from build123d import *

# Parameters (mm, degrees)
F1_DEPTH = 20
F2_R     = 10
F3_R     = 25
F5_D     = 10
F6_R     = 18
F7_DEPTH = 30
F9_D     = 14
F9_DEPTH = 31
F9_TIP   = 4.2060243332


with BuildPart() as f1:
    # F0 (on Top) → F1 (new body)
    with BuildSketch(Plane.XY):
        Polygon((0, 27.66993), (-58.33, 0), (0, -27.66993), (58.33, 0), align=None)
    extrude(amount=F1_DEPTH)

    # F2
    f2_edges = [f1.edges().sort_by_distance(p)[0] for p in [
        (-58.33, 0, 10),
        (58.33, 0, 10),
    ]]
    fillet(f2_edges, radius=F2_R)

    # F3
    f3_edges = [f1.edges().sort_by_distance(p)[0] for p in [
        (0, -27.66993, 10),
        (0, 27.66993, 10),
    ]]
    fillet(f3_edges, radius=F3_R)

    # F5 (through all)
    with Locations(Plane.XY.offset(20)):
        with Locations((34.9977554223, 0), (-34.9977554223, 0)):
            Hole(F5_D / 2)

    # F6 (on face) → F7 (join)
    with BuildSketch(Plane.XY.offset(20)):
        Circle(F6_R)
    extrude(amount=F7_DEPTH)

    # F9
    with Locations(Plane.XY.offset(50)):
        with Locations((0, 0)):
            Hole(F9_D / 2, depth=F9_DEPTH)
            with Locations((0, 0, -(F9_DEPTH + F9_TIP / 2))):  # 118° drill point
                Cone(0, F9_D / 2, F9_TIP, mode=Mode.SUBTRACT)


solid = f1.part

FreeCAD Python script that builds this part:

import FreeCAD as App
import Part
import Sketcher

V = App.Vector
Q = App.Units.Quantity


def edges_at(feature, points):
    """Names of the edges that pass closest to the given points."""
    edges = feature.Shape.Edges
    near = lambda p: min(range(len(edges)), key=lambda i: edges[i].distToShape(Part.Vertex(*p))[0])
    return sorted({f"Edge{near(p) + 1}" for p in points})

doc = App.newDocument("Part")
params = doc.addObject("Spreadsheet::Sheet", "Params")
for row, (alias, value) in enumerate([
    ("pad1_length", "20 mm"),
    ("fillet_radius", "10 mm"),
    ("fillet2_radius", "25 mm"),
    ("sketch2_diameter", "10 mm"),
    ("hole_diameter", "10 mm"),
    ("sketch3_diameter", "36 mm"),
    ("pad2_length", "30 mm"),
    ("sketch4_diameter", "14 mm"),
    ("hole2_diameter", "14 mm"),
    ("hole2_depth", "31 mm"),
], start=1):
    params.set(f"A{row}", alias)
    params.set(f"B{row}", "=" + value)
    params.setAlias(f"B{row}", alias)

body = doc.addObject("PartDesign::Body", "Body")

# Sketch on XY plane
sketch1 = body.newObject("Sketcher::SketchObject", "Sketch")
sketch1.AttachmentSupport = (doc.getObject("XY_Plane"), [""])
sketch1.MapMode = "FlatFace"
sketch1.addGeometry(Part.LineSegment(V(0, 28, 0), V(-58, 0, 0)), False)
sketch1.addGeometry(Part.LineSegment(V(-58, 0, 0), V(0, -28, 0)), False)
sketch1.addGeometry(Part.LineSegment(V(0, -28, 0), V(58, 0, 0)), False)
sketch1.addGeometry(Part.LineSegment(V(58, 0, 0), V(0, 28, 0)), False)
sketch1.addConstraint(Sketcher.Constraint("Coincident", 0, 2, 1, 1))
sketch1.addConstraint(Sketcher.Constraint("Coincident", 1, 2, 2, 1))
sketch1.addConstraint(Sketcher.Constraint("Coincident", 2, 2, 3, 1))
sketch1.addConstraint(Sketcher.Constraint("Coincident", 3, 2, 0, 1))
sketch1.addConstraint(Sketcher.Constraint("Symmetric", 0, 2, 2, 2, -1, 1))
sketch1.addConstraint(Sketcher.Constraint("Symmetric", 1, 2, 3, 2, -1, 1))
sketch1.addConstraint(Sketcher.Constraint("PointOnObject", 0, 2, -1))
sketch1.addConstraint(Sketcher.Constraint("PointOnObject", 1, 2, -2))
sketch1.addConstraint(Sketcher.Constraint("DistanceX", 0, 2, -1, 1, Q("58.33 mm")))
sketch1.addConstraint(Sketcher.Constraint("DistanceY", 1, 2, -1, 1, Q("27.66993 mm")))
pad1 = body.newObject("PartDesign::Pad", "Pad")
pad1.Profile = sketch1
pad1.setExpression("Length", "Params.pad1_length")
doc.recompute()

fillet = body.newObject("PartDesign::Fillet", "Fillet")
fillet.Base = (pad1, edges_at(pad1, [(-58.33, 0, 10), (58.33, 0, 10)]))
fillet.setExpression("Radius", "Params.fillet_radius")
doc.recompute()

fillet2 = body.newObject("PartDesign::Fillet", "Fillet001")
fillet2.Base = (fillet, edges_at(fillet, [(0, -27.67, 10), (0, 27.67, 10)]))
fillet2.setExpression("Radius", "Params.fillet2_radius")

# Sketch on XY plane
sketch2 = body.newObject("Sketcher::SketchObject", "Sketch001")
sketch2.AttachmentSupport = (doc.getObject("XY_Plane"), [""])
sketch2.MapMode = "FlatFace"
sketch2.AttachmentOffset = App.Placement(V(0, 0, 20), App.Rotation())
sketch2.addGeometry(Part.Circle(V(35, 0, 0), V(0, 0, 1), 5), False)
sketch2.addGeometry(Part.Circle(V(-35, 0, 0), V(0, 0, 1), 5), False)
sketch2.addConstraint(Sketcher.Constraint("Equal", 0, 1))
sketch2.addConstraint(Sketcher.Constraint("Symmetric", 0, 3, 1, 3, -1, 1))
sketch2.addConstraint(Sketcher.Constraint("PointOnObject", 0, 3, -1))
sketch2.addConstraint(Sketcher.Constraint("Diameter", 0, Q("10 mm")))
sketch2.addConstraint(Sketcher.Constraint("DistanceX", 1, 3, 0, 3, Q("69.995511 mm")))
sketch2.setExpression("Constraints[3]", "Params.sketch2_diameter")
doc.recompute()
hole = body.newObject("PartDesign::Hole", "Hole")
hole.Profile = sketch2
hole.ThreadType = "None"
hole.setExpression("Diameter", "Params.hole_diameter")
hole.DepthType = "ThroughAll"

# Sketch on XY plane
sketch3 = body.newObject("Sketcher::SketchObject", "Sketch002")
sketch3.AttachmentSupport = (doc.getObject("XY_Plane"), [""])
sketch3.MapMode = "FlatFace"
sketch3.AttachmentOffset = App.Placement(V(0, 0, 20), App.Rotation())
sketch3.addGeometry(Part.Circle(V(0, 0, 0), V(0, 0, 1), 18), False)
sketch3.addConstraint(Sketcher.Constraint("Coincident", 0, 3, -1, 1))
sketch3.addConstraint(Sketcher.Constraint("Diameter", 0, Q("36 mm")))
sketch3.setExpression("Constraints[1]", "Params.sketch3_diameter")
pad2 = body.newObject("PartDesign::Pad", "Pad001")
pad2.Profile = sketch3
pad2.setExpression("Length", "Params.pad2_length")

# Sketch on XY plane
sketch4 = body.newObject("Sketcher::SketchObject", "Sketch003")
sketch4.AttachmentSupport = (doc.getObject("XY_Plane"), [""])
sketch4.MapMode = "FlatFace"
sketch4.AttachmentOffset = App.Placement(V(0, 0, 50), App.Rotation())
sketch4.addGeometry(Part.Circle(V(0, 0, 0), V(0, 0, 1), 7), False)
sketch4.addConstraint(Sketcher.Constraint("Coincident", 0, 3, -1, 1))
sketch4.addConstraint(Sketcher.Constraint("Diameter", 0, Q("14 mm")))
sketch4.setExpression("Constraints[1]", "Params.sketch4_diameter")
doc.recompute()
hole2 = body.newObject("PartDesign::Hole", "Hole001")
hole2.Profile = sketch4
hole2.ThreadType = "None"
hole2.setExpression("Diameter", "Params.hole2_diameter")
hole2.DepthType = "Dimension"
hole2.setExpression("Depth", "Params.hole2_depth")
hole2.DrillPoint = "Angled"
hole2.DrillPointAngle = 118

doc.recompute()
